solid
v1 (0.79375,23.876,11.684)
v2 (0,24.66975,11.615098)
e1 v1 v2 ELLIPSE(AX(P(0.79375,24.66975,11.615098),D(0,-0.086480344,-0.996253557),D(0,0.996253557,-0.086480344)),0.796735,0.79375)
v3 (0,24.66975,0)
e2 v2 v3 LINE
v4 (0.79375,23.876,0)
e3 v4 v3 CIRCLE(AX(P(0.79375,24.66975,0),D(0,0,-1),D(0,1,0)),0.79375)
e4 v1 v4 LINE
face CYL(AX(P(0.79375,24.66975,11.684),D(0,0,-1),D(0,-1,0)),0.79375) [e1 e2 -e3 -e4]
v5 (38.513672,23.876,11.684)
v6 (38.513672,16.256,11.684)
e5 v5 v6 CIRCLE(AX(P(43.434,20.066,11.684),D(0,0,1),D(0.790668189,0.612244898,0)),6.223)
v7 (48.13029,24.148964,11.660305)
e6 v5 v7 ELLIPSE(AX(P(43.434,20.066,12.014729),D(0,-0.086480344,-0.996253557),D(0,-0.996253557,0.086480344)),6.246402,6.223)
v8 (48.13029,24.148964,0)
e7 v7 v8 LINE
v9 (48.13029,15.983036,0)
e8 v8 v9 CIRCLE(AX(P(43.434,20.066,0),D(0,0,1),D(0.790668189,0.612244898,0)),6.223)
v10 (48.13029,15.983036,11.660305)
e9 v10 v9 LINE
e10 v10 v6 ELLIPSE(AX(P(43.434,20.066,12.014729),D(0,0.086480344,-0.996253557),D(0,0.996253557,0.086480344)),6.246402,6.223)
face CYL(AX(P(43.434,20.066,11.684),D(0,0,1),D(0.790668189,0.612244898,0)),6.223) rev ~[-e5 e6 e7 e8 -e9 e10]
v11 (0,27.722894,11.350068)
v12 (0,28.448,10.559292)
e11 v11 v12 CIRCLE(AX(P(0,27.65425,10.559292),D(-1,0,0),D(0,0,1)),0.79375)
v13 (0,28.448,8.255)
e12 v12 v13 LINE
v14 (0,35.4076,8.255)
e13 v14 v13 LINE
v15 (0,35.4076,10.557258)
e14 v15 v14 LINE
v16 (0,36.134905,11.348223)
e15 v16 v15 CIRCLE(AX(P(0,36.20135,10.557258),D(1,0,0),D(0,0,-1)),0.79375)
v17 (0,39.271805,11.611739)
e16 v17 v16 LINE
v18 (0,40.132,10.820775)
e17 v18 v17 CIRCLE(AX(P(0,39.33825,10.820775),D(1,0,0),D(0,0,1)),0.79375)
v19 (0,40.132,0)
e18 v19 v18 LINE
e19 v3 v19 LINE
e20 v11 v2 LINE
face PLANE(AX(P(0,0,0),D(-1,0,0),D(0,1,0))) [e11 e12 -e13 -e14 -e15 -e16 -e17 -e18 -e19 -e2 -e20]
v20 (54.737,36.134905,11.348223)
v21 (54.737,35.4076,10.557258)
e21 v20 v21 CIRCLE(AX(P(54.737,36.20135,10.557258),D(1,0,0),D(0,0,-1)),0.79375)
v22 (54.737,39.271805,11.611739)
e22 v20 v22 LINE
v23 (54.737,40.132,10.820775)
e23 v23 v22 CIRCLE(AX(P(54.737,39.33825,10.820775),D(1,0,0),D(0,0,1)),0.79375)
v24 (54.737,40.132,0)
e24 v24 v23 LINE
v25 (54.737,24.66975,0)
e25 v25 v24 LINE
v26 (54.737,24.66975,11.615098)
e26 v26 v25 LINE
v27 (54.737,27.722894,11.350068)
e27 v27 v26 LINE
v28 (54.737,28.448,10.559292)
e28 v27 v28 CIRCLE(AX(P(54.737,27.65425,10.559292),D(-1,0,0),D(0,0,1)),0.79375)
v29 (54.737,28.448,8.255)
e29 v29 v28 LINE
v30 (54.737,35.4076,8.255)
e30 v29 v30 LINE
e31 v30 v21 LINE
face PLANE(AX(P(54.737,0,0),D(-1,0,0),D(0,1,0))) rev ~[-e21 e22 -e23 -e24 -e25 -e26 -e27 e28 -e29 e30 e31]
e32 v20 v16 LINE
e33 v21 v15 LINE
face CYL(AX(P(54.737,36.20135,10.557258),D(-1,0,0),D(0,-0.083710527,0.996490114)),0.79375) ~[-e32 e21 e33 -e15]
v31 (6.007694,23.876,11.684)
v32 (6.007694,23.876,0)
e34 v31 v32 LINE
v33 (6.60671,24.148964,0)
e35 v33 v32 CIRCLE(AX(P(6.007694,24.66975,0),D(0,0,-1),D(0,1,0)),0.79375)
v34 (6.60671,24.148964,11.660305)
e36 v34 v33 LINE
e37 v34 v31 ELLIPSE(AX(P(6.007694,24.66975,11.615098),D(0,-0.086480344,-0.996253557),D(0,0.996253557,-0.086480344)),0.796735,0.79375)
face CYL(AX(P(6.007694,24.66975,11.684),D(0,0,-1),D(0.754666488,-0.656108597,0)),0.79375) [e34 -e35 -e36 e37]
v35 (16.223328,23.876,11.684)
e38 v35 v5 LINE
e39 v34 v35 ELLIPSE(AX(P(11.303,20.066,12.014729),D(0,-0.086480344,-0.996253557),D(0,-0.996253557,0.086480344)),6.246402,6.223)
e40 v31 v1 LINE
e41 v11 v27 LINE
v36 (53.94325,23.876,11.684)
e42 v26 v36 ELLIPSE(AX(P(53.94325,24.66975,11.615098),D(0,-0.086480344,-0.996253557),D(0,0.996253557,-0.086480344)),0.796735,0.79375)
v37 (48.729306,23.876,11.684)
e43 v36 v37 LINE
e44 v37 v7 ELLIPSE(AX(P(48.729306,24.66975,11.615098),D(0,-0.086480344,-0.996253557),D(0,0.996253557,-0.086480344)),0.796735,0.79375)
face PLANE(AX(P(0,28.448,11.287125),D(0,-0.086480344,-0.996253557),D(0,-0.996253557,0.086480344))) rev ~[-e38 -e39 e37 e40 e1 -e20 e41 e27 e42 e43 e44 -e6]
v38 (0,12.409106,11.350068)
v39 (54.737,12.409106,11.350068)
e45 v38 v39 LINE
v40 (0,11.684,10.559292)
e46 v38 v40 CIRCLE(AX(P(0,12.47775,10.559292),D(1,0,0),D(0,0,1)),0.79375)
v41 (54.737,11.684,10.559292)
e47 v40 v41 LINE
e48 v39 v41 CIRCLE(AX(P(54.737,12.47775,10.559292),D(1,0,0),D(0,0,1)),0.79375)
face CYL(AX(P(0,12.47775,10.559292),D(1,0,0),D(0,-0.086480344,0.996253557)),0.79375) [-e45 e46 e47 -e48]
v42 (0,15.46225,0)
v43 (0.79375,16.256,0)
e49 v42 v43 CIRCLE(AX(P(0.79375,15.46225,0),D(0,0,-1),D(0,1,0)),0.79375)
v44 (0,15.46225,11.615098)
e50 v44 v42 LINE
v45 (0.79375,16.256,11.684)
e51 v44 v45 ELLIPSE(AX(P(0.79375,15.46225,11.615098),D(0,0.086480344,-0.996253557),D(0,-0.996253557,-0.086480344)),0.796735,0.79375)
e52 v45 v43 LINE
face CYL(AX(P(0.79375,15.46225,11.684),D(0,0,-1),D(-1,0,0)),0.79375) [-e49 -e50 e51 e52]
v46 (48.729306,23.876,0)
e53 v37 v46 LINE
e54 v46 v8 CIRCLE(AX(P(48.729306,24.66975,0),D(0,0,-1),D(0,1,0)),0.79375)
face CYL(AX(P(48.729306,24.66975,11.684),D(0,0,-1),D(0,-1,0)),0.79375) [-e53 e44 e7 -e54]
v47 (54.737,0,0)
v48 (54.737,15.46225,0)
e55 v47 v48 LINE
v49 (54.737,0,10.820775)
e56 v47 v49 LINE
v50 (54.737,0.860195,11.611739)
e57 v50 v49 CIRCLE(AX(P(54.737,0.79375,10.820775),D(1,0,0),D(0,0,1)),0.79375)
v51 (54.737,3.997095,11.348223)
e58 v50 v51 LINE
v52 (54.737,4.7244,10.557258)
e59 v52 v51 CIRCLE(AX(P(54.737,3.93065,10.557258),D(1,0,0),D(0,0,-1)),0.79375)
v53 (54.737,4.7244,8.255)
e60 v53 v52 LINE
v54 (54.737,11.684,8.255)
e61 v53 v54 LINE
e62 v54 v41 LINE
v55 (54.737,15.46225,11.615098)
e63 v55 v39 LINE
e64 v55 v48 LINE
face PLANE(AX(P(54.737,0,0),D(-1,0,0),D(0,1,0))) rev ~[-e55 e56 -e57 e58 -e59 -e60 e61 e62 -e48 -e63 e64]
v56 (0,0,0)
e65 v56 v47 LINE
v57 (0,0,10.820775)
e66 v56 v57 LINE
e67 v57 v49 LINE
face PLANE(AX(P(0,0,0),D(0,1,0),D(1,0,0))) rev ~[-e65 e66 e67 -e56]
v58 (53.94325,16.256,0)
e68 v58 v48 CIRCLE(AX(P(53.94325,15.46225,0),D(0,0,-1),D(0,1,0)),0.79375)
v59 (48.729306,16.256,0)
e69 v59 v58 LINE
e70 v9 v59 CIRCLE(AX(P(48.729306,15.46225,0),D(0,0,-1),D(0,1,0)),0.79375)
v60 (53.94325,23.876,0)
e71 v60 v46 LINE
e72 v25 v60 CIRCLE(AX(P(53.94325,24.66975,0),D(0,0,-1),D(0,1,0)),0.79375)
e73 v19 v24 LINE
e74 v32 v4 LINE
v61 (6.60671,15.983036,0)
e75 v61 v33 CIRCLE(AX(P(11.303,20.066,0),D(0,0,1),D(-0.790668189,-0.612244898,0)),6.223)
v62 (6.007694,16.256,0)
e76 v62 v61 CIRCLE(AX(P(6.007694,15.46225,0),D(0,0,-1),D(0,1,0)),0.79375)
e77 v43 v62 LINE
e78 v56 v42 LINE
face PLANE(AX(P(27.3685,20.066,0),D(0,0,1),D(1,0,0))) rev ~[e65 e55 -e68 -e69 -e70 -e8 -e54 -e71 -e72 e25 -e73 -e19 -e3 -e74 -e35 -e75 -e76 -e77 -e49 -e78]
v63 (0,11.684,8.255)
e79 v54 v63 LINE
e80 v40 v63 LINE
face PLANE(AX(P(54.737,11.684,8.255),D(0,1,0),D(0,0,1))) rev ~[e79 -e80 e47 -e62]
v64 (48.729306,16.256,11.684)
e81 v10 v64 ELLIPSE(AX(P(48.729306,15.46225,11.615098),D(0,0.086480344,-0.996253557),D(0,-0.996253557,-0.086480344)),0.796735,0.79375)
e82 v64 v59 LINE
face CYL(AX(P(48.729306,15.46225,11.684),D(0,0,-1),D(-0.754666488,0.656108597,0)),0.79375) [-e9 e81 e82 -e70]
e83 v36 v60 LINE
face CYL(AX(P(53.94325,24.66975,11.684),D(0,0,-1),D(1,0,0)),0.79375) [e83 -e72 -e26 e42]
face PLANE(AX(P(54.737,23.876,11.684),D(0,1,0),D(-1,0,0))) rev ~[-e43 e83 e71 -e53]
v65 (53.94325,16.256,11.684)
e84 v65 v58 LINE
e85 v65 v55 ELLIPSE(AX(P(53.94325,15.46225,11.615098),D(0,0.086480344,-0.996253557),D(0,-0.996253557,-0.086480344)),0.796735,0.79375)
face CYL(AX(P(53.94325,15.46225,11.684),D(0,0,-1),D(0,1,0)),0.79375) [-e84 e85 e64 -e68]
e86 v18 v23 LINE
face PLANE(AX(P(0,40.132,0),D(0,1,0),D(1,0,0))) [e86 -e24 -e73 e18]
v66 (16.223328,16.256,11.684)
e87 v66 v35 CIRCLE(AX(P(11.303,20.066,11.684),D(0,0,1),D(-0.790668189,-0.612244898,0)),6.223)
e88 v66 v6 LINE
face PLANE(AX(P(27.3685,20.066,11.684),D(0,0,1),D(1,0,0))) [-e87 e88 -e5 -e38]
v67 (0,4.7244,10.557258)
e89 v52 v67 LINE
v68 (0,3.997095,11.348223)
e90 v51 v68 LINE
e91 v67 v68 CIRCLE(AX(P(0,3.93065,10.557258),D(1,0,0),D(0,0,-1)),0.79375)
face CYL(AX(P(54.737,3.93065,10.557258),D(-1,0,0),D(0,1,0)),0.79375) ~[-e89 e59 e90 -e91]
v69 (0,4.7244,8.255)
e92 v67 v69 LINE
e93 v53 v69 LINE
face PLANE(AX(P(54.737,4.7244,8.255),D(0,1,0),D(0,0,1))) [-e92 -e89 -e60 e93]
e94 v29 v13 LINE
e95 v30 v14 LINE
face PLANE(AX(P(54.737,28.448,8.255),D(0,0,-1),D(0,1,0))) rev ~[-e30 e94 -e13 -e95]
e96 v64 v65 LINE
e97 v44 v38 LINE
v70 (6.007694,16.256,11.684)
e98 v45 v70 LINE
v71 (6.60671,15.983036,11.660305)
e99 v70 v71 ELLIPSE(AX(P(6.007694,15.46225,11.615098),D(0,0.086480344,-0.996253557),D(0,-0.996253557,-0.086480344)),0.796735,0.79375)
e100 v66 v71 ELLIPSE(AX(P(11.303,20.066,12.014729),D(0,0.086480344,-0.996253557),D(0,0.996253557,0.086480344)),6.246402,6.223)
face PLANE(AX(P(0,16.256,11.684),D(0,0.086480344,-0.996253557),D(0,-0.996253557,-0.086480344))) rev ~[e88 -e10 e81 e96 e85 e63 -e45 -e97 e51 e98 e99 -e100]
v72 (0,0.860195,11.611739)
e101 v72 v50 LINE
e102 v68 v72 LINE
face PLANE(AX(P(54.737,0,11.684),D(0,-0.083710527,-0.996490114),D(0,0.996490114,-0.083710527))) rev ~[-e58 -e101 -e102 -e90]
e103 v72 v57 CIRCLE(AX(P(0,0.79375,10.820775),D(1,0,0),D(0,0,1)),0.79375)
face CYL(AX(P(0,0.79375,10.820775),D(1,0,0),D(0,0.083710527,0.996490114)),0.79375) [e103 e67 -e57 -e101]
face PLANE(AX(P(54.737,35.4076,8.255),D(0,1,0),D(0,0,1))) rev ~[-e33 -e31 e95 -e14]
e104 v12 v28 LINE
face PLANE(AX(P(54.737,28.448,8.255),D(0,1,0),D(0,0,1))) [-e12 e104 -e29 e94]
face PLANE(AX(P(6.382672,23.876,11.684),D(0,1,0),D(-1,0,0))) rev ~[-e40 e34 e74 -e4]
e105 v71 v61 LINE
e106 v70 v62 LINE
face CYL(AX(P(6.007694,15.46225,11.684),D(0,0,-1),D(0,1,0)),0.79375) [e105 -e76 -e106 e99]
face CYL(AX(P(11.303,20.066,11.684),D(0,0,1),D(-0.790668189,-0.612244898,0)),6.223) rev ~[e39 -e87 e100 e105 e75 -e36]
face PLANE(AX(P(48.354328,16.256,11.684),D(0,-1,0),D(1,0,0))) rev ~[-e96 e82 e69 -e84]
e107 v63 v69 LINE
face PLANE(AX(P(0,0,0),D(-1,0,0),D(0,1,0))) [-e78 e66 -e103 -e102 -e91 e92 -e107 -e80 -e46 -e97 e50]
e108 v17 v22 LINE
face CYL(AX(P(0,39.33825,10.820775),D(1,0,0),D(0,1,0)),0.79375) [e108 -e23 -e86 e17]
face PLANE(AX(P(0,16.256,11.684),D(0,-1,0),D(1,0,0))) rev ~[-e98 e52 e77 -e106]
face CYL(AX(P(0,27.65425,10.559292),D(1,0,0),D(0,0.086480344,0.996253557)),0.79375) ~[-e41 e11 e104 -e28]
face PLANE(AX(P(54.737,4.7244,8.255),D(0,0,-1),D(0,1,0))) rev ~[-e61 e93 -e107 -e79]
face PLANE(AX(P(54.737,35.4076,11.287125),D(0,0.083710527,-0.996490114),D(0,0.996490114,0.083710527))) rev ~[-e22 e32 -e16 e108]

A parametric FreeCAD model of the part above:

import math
import FreeCAD as App
import Part
import Sketcher
Q = App.Units.Quantity


def edges_at(feature, points):
    """Names of the edges that pass closest to the given points."""
    edges = feature.Shape.Edges
    near = lambda p: min(range(len(edges)), key=lambda i: edges[i].distToShape(Part.Vertex(*p))[0])
    return sorted({f"Edge{near(p) + 1}" for p in points})

doc = App.newDocument("Part")
body = doc.addObject("PartDesign::Body", "Body")

sketch1 = body.newObject("Sketcher::SketchObject", "Sketch")
sketch1.AttachmentSupport = (doc.getObject("XY_Plane"), [""])
sketch1.MapMode = "FlatFace"
sketch1.addGeometry([
    Part.LineSegment(App.Vector(0, 40.132, 0), App.Vector(0, 0, 0)),
    Part.LineSegment(App.Vector(0, 0, 0), App.Vector(54.737, 0, 0)),
    Part.LineSegment(App.Vector(54.737, 0, 0), App.Vector(54.737, 40.132, 0)),
    Part.LineSegment(App.Vector(54.737, 40.132, 0), App.Vector(0, 40.132, 0)),
], False)
sketch1.addConstraint([
    Sketcher.Constraint("Coincident", 0, 2, 1, 1),
    Sketcher.Constraint("Coincident", 1, 2, 2, 1),
    Sketcher.Constraint("Coincident", 2, 2, 3, 1),
    Sketcher.Constraint("Coincident", 3, 2, 0, 1),
    Sketcher.Constraint("Vertical", 0),
    Sketcher.Constraint("Horizontal", 1),
    Sketcher.Constraint("Vertical", 2),
    Sketcher.Constraint("Horizontal", 3),
    Sketcher.Constraint("Coincident", 0, 2, -1, 1),
    Sketcher.Constraint("DistanceY", 0, 2, 0, 1, Q("1.58 in")),
    Sketcher.Constraint("DistanceX", 1, 1, 1, 2, Q("2.155 in")),
])
pad1 = body.newObject("PartDesign::Pad", "Pad")
pad1.Profile = sketch1
pad1.Length = Q("0.46 in")

sketch2 = body.newObject("Sketcher::SketchObject", "Sketch001")
sketch2.AttachmentSupport = (doc.getObject("YZ_Plane"), [""])
sketch2.MapMode = "FlatFace"
sketch2.AttachmentOffset = App.Placement(App.Vector(0, 0, 2.155 * 25.4), App.Rotation())
sketch2.addGeometry([
    Part.LineSegment(App.Vector(28.448, 11.684, 0), App.Vector(28.448, 8.255, 0)),
    Part.LineSegment(App.Vector(28.448, 8.255, 0), App.Vector(35.4076, 8.255, 0)),
    Part.LineSegment(App.Vector(35.4076, 8.255, 0), App.Vector(35.4076, 11.684, 0)),
    Part.LineSegment(App.Vector(35.4076, 11.684, 0), App.Vector(28.448, 11.684, 0)),
    Part.LineSegment(App.Vector(4.7244, 11.684, 0), App.Vector(4.7244, 8.255, 0)),
    Part.LineSegment(App.Vector(4.7244, 8.255, 0), App.Vector(11.684, 8.255, 0)),
    Part.LineSegment(App.Vector(11.684, 8.255, 0), App.Vector(11.684, 11.684, 0)),
    Part.LineSegment(App.Vector(11.684, 11.684, 0), App.Vector(4.7244, 11.684, 0)),
], False)
sketch2.addConstraint([
    Sketcher.Constraint("Coincident", 0, 2, 1, 1),
    Sketcher.Constraint("Coincident", 1, 2, 2, 1),
    Sketcher.Constraint("Coincident", 2, 2, 3, 1),
    Sketcher.Constraint("Coincident", 3, 2, 0, 1),
    Sketcher.Constraint("Coincident", 4, 2, 5, 1),
    Sketcher.Constraint("Coincident", 5, 2, 6, 1),
    Sketcher.Constraint("Coincident", 6, 2, 7, 1),
    Sketcher.Constraint("Coincident", 7, 2, 4, 1),
    Sketcher.Constraint("Vertical", 0),
    Sketcher.Constraint("Horizontal", 1),
    Sketcher.Constraint("Vertical", 2),
    Sketcher.Constraint("Horizontal", 3),
    Sketcher.Constraint("Vertical", 4),
    Sketcher.Constraint("Horizontal", 5),
    Sketcher.Constraint("Vertical", 6),
    Sketcher.Constraint("Horizontal", 7),
    Sketcher.Constraint("Horizontal", 1, 2, 4, 2),
    Sketcher.Constraint("Horizontal", 3, 2, 6, 2),
    Sketcher.Constraint("Equal", 3, 5),
    Sketcher.Constraint("DistanceX", 1, 1, 1, 2, Q("0.274 in")),
    Sketcher.Constraint("DistanceY", 0, 2, 0, 1, Q("0.135 in")),
    Sketcher.Constraint("DistanceX", -1, 1, 0, 2, Q("1.12 in")),
    Sketcher.Constraint("DistanceY", -1, 1, 2, 2, Q("0.46 in")),
    Sketcher.Constraint("DistanceX", -1, 1, 5, 2, Q("0.46 in")),
])
pocket1 = body.newObject("PartDesign::Pocket", "Pocket")
pocket1.Profile = sketch2
pocket1.Type = "ThroughAll"

sketch3 = body.newObject("Sketcher::SketchObject", "Sketch002")
sketch3.AttachmentSupport = (doc.getObject("YZ_Plane"), [""])
sketch3.MapMode = "FlatFace"
sketch3.AttachmentOffset = App.Placement(App.Vector(0, 0, 2.155 * 25.4), App.Rotation())
sketch3.addGeometry([
    Part.LineSegment(App.Vector(4.7244, 11.684, 0), App.Vector(0, 11.684, 0)),
    Part.LineSegment(App.Vector(0, 11.684, 0), App.Vector(4.7244, 11.287125, 0)),
    Part.LineSegment(App.Vector(4.7244, 11.287125, 0), App.Vector(4.7244, 11.684, 0)),
    Part.LineSegment(App.Vector(35.4076, 11.287125, 0), App.Vector(40.132, 11.684, 0)),
    Part.LineSegment(App.Vector(40.132, 11.684, 0), App.Vector(35.4076, 11.684, 0)),
    Part.LineSegment(App.Vector(35.4076, 11.684, 0), App.Vector(35.4076, 11.287125, 0)),
], False)
sketch3.addConstraint([
    Sketcher.Constraint("Coincident", 0, 2, 1, 1),
    Sketcher.Constraint("Coincident", 1, 2, 2, 1),
    Sketcher.Constraint("Coincident", 2, 2, 0, 1),
    Sketcher.Constraint("Coincident", 3, 2, 4, 1),
    Sketcher.Constraint("Coincident", 4, 2, 5, 1),
    Sketcher.Constraint("Coincident", 5, 2, 3, 1),
    Sketcher.Constraint("Horizontal", 0),
    Sketcher.Constraint("Vertical", 2),
    Sketcher.Constraint("Horizontal", 4),
    Sketcher.Constraint("Vertical", 5),
    Sketcher.Constraint("PointOnObject", 0, 2, -2),
    Sketcher.Constraint("Horizontal", 2, 2, 3, 2),
    Sketcher.Constraint("Horizontal", 1, 2, 5, 2),
    Sketcher.Constraint("Equal", 0, 4),
    Sketcher.Constraint("DistanceX", 0, 2, 0, 1, Q("0.186 in")),
    Sketcher.Constraint("DistanceY", 2, 1, 2, 2, Q("0.015625 in")),
    Sketcher.Constraint("DistanceY", -1, 1, 0, 2, Q("0.46 in")),
    Sketcher.Constraint("DistanceX", -1, 1, 3, 2, Q("1.58 in")),
])
pocket2 = body.newObject("PartDesign::Pocket", "Pocket001")
pocket2.Profile = sketch3
pocket2.Type = "ThroughAll"

sketch4 = body.newObject("Sketcher::SketchObject", "Sketch003")
sketch4.AttachmentSupport = (doc.getObject("XY_Plane"), [""])
sketch4.MapMode = "FlatFace"
sketch4.AttachmentOffset = App.Placement(App.Vector(0, 0, 0.46 * 25.4), App.Rotation())
sketch4.addGeometry([
    Part.LineSegment(App.Vector(0, 16.256, 0), App.Vector(6.382672, 16.256, 0)),
    Part.ArcOfCircle(Part.Circle(App.Vector(11.303, 20.066, 0), App.Vector(0, 0, 1), 6.223), math.radians(-142.247999), math.radians(142.247999)),
    Part.LineSegment(App.Vector(6.382672, 23.876, 0), App.Vector(0, 23.876, 0)),
    Part.LineSegment(App.Vector(0, 23.876, 0), App.Vector(0, 16.256, 0)),
    Part.LineSegment(App.Vector(54.737, 23.876, 0), App.Vector(48.354328, 23.876, 0)),
    Part.ArcOfCircle(Part.Circle(App.Vector(43.434, 20.066, 0), App.Vector(0, 0, 1), 6.223), math.radians(37.752001), math.radians(322.247999)),
    Part.LineSegment(App.Vector(48.354328, 16.256, 0), App.Vector(54.737, 16.256, 0)),
    Part.LineSegment(App.Vector(54.737, 16.256, 0), App.Vector(54.737, 23.876, 0)),
], False)
sketch4.addConstraint([
    Sketcher.Constraint("Coincident", 0, 2, 1, 1),
    Sketcher.Constraint("Coincident", 1, 2, 2, 1),
    Sketcher.Constraint("Coincident", 2, 2, 3, 1),
    Sketcher.Constraint("Coincident", 3, 2, 0, 1),
    Sketcher.Constraint("Coincident", 4, 2, 5, 1),
    Sketcher.Constraint("Coincident", 5, 2, 6, 1),
    Sketcher.Constraint("Coincident", 6, 2, 7, 1),
    Sketcher.Constraint("Coincident", 7, 2, 4, 1),
    Sketcher.Constraint("Horizontal", 0),
    Sketcher.Constraint("Horizontal", 2),
    Sketcher.Constraint("Vertical", 3),
    Sketcher.Constraint("Horizontal", 4),
    Sketcher.Constraint("Horizontal", 6),
    Sketcher.Constraint("Vertical", 7),
    Sketcher.Constraint("Equal", 1, 5),
    Sketcher.Constraint("PointOnObject", 2, 2, -2),
    Sketcher.Constraint("Horizontal", 1, 3, 5, 3),
    Sketcher.Constraint("Horizontal", 2, 2, 4, 2),
    Sketcher.Constraint("Horizontal", 3, 2, 5, 2),
    Sketcher.Constraint("Vertical", 0, 2, 1, 2),
    Sketcher.Constraint("Equal", 2, 4),
    Sketcher.Constraint("DistanceY", 3, 2, 3, 1, Q("0.3 in")),
    Sketcher.Constraint("Radius", 1, Q("0.245 in")),
    Sketcher.Constraint("DistanceY", -1, 1, 1, 3, Q("0.79 in")),
    Sketcher.Constraint("DistanceX", -1, 1, 5, 3, Q("1.71 in")),
    Sketcher.Constraint("DistanceX", -1, 1, 1, 3, Q("0.445 in")),
])
pocket3 = body.newObject("PartDesign::Pocket", "Pocket002")
pocket3.Profile = sketch4
pocket3.Type = "ThroughAll"

sketch5 = body.newObject("Sketcher::SketchObject", "Sketch004")
sketch5.AttachmentSupport = (doc.getObject("YZ_Plane"), [""])
sketch5.MapMode = "FlatFace"
sketch5.addGeometry([
    Part.LineSegment(App.Vector(28.448, 11.287125, 0), App.Vector(23.876, 11.684, 0)),
    Part.LineSegment(App.Vector(23.876, 11.684, 0), App.Vector(28.448, 11.684, 0)),
    Part.LineSegment(App.Vector(28.448, 11.684, 0), App.Vector(28.448, 11.287125, 0)),
    Part.LineSegment(App.Vector(16.256, 11.684, 0), App.Vector(11.684, 11.287125, 0)),
    Part.LineSegment(App.Vector(11.684, 11.287125, 0), App.Vector(11.684, 11.684, 0)),
    Part.LineSegment(App.Vector(11.684, 11.684, 0), App.Vector(16.256, 11.684, 0)),
], False)
sketch5.addConstraint([
    Sketcher.Constraint("Coincident", 0, 2, 1, 1),
    Sketcher.Constraint("Coincident", 1, 2, 2, 1),
    Sketcher.Constraint("Coincident", 2, 2, 0, 1),
    Sketcher.Constraint("Coincident", 3, 2, 4, 1),
    Sketcher.Constraint("Coincident", 4, 2, 5, 1),
    Sketcher.Constraint("Coincident", 5, 2, 3, 1),
    Sketcher.Constraint("Horizontal", 1),
    Sketcher.Constraint("Vertical", 2),
    Sketcher.Constraint("Vertical", 4),
    Sketcher.Constraint("Horizontal", 5),
    Sketcher.Constraint("Horizontal", 2, 2, 3, 2),
    Sketcher.Constraint("Horizontal", 1, 2, 4, 2),
    Sketcher.Constraint("Equal", 1, 5),
    Sketcher.Constraint("DistanceX", 1, 1, 1, 2, Q("0.18 in")),
    Sketcher.Constraint("DistanceX", 5, 2, 0, 2, Q("0.3 in")),
    Sketcher.Constraint("DistanceY", 2, 2, 2, 1, Q("0.015625 in")),
    Sketcher.Constraint("DistanceX", -1, 1, 0, 2, Q("0.94 in")),
    Sketcher.Constraint("DistanceY", -1, 1, 0, 2, Q("0.46 in")),
])
pocket4 = body.newObject("PartDesign::Pocket", "Pocket003")
pocket4.Profile = sketch5
pocket4.Type = "ThroughAll"
pocket4.Reversed = True
doc.recompute()

fillet = body.newObject("PartDesign::Fillet", "Fillet")
fillet.Base = (pocket4, edges_at(pocket4, [
    (27.369, 40.132, 11.684),
    (27.369, 35.408, 11.287),
    (27.369, 28.448, 11.287),
    (27.369, 11.684, 11.287),
    (27.369, 4.724, 11.287),
    (27.369, 0, 11.684),
    (54.737, 16.256, 5.842),
    (54.737, 23.876, 5.842),
    (0, 23.876, 5.842),
    (0, 16.256, 5.842),
    (6.383, 23.876, 5.842),
    (6.383, 16.256, 5.842),
    (48.354, 16.256, 5.842),
    (48.354, 23.876, 5.842),
]))
fillet.Radius = Q("0.03125 in")

doc.recompute()
